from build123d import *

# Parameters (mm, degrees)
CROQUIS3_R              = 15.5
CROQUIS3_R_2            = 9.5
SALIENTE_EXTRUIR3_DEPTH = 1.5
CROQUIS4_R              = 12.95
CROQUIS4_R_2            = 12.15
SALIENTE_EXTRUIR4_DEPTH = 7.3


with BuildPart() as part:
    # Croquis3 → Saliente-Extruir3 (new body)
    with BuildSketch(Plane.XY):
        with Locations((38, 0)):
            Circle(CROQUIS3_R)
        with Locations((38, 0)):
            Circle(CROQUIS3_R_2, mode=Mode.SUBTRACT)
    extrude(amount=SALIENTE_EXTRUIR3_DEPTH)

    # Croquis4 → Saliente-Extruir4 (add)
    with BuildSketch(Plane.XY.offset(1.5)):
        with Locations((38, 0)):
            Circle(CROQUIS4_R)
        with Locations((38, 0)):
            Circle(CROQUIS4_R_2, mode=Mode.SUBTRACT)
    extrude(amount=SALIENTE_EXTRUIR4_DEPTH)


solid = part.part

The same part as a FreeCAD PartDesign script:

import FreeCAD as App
import Part
import Sketcher

doc = App.newDocument("Part")
params = doc.addObject("Spreadsheet::Sheet", "Params")
for row, (alias, value) in enumerate([
    ("sketch1_diameter", "31 mm"),
    ("sketch1_diameter2", "19 mm"),
    ("pad1_length", "1.5 mm"),
    ("sketch2_diameter", "25.9 mm"),
    ("sketch2_diameter2", "24.3 mm"),
    ("pad2_length", "7.3 mm"),
], start=1):
    params.set(f"A{row}", alias)
    params.set(f"B{row}", "=" + value)
    params.setAlias(f"B{row}", alias)

body = doc.addObject("PartDesign::Body", "Body")

# Sketch on XY plane
sketch1 = body.newObject("Sketcher::SketchObject", "Sketch")
sketch1.AttachmentSupport = (doc.getObject("XY_Plane"), [""])
sketch1.MapMode = "FlatFace"
sketch1.addGeometry([
    Part.Circle(App.Vector(38, 0, 0), App.Vector(0, 0, 1), 16),
    Part.Circle(App.Vector(38, 0, 0), App.Vector(0, 0, 1), 10),
], False)
sketch1.addConstraint([
    Sketcher.Constraint("Coincident", 1, 3, 0, 3),
    Sketcher.Constraint("PointOnObject", 0, 3, -1),
    Sketcher.Constraint("Diameter", 0, 31.0),
    Sketcher.Constraint("Diameter", 1, 19.0),
    Sketcher.Constraint("DistanceX", -1, 1, 0, 3, 38.0),
])
sketch1.setExpression("Constraints[2]", "Params.sketch1_diameter")
sketch1.setExpression("Constraints[3]", "Params.sketch1_diameter2")
pad1 = body.newObject("PartDesign::Pad", "Pad")
pad1.Profile = sketch1
pad1.setExpression("Length", "Params.pad1_length")

# Sketch on XY plane
sketch2 = body.newObject("Sketcher::SketchObject", "Sketch001")
sketch2.AttachmentSupport = (doc.getObject("XY_Plane"), [""])
sketch2.MapMode = "FlatFace"
sketch2.AttachmentOffset = App.Placement(App.Vector(0, 0, 1.5), App.Rotation())
sketch2.addGeometry([
    Part.Circle(App.Vector(38, 0, 0), App.Vector(0, 0, 1), 13),
    Part.Circle(App.Vector(38, 0, 0), App.Vector(0, 0, 1), 12),
], False)
sketch2.addConstraint([
    Sketcher.Constraint("Coincident", 1, 3, 0, 3),
    Sketcher.Constraint("PointOnObject", 0, 3, -1),
    Sketcher.Constraint("Diameter", 0, 25.9),
    Sketcher.Constraint("Diameter", 1, 24.3),
    Sketcher.Constraint("DistanceX", -1, 1, 0, 3, 38.0),
])
sketch2.setExpression("Constraints[2]", "Params.sketch2_diameter")
sketch2.setExpression("Constraints[3]", "Params.sketch2_diameter2")
pad2 = body.newObject("PartDesign::Pad", "Pad001")
pad2.Profile = sketch2
pad2.setExpression("Length", "Params.pad2_length")

doc.recompute()
